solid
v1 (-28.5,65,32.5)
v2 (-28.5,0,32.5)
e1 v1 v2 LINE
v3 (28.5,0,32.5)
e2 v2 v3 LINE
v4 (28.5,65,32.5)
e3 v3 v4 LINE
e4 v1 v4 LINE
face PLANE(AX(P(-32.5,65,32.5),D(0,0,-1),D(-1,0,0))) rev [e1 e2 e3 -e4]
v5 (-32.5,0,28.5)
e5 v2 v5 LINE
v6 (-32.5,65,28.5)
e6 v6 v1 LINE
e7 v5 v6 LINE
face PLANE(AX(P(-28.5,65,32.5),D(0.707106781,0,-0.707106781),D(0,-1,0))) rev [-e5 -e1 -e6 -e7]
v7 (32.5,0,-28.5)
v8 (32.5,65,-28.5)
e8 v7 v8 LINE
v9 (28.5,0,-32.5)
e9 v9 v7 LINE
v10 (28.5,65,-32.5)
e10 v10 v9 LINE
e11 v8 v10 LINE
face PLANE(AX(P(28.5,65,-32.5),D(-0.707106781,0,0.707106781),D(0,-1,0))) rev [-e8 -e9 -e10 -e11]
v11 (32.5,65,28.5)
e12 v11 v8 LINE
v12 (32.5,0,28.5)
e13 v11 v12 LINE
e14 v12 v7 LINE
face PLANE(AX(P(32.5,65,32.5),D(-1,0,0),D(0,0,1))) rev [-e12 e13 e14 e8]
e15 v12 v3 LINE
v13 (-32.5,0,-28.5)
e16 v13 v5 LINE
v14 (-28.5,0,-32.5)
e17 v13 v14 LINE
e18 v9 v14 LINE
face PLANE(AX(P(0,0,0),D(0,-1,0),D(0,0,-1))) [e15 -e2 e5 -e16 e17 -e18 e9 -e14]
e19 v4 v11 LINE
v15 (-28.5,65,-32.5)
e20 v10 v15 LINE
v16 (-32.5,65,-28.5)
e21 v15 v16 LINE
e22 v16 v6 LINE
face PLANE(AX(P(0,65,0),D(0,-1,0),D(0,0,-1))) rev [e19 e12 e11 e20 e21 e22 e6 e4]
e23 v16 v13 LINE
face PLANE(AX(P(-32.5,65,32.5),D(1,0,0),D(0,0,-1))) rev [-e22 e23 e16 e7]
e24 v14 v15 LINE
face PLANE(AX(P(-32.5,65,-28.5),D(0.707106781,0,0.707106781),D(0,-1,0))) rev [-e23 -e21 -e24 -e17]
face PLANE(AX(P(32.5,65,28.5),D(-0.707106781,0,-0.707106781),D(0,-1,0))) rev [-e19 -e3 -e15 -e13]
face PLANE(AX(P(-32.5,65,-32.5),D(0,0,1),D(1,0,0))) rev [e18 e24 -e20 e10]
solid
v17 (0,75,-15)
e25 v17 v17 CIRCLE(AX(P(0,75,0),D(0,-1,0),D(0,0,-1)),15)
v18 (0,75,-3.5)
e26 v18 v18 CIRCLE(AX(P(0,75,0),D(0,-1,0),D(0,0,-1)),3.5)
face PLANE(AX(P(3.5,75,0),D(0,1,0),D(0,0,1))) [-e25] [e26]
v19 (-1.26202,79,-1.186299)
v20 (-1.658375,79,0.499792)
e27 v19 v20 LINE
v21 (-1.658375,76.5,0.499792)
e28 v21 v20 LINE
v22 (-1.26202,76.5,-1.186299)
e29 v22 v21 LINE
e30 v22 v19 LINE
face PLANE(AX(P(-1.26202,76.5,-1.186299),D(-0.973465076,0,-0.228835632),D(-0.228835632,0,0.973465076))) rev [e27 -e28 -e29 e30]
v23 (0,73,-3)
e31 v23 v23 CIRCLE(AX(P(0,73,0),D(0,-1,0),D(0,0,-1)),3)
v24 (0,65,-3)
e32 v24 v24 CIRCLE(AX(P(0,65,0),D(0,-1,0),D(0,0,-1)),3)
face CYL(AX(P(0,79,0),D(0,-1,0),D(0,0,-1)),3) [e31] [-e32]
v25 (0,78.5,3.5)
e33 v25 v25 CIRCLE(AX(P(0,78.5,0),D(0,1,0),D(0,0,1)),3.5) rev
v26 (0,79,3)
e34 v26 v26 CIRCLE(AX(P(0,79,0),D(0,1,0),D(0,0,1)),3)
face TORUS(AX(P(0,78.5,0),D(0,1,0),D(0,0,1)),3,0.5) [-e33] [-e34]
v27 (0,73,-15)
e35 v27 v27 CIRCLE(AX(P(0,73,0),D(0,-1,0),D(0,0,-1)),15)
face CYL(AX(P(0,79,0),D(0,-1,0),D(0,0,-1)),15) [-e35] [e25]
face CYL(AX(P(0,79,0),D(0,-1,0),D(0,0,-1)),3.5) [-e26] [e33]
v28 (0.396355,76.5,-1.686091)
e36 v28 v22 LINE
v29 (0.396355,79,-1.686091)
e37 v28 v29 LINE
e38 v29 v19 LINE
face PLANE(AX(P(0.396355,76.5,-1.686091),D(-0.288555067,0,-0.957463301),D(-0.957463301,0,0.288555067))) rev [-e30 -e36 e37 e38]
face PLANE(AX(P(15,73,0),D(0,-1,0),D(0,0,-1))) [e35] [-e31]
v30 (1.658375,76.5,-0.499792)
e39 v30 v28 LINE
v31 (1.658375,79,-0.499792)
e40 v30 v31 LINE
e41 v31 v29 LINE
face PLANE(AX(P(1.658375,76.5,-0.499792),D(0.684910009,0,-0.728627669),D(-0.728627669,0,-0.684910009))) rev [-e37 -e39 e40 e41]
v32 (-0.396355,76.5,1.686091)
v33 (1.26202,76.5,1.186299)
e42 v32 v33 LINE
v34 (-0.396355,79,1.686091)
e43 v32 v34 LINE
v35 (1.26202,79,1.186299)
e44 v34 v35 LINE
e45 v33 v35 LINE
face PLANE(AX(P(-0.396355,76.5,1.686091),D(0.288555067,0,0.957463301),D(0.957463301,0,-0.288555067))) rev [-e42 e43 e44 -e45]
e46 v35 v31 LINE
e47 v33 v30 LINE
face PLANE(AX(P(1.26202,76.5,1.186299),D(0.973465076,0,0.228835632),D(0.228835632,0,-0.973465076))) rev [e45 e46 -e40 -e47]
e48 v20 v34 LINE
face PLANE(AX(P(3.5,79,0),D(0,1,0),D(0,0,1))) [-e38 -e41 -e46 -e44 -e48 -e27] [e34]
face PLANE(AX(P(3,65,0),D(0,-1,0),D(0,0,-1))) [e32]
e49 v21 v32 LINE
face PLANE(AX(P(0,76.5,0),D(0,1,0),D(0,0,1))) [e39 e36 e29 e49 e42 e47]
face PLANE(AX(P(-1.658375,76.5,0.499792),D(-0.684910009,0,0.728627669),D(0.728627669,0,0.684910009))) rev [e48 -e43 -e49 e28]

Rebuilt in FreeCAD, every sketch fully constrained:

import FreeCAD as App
import Part
import Sketcher


def edges_at(feature, points):
    """Names of the edges that pass closest to the given points."""
    edges = feature.Shape.Edges
    near = lambda p: min(range(len(edges)), key=lambda i: edges[i].distToShape(Part.Vertex(*p))[0])
    return sorted({f"Edge{near(p) + 1}" for p in points})

doc = App.newDocument("Part")
body = doc.addObject("PartDesign::Body", "Body")

# Sketch on XZ plane
sketch1 = body.newObject("Sketcher::SketchObject", "Sketch")
sketch1.AttachmentSupport = (doc.getObject("XZ_Plane"), [""])
sketch1.MapMode = "FlatFace"
sketch1.addGeometry(Part.LineSegment(App.Vector(-32.5, -32.5, 0), App.Vector(-32.5, 32.5, 0)), False)
sketch1.addGeometry(Part.LineSegment(App.Vector(-32.5, 32.5, 0), App.Vector(32.5, 32.5, 0)), False)
sketch1.addGeometry(Part.LineSegment(App.Vector(32.5, 32.5, 0), App.Vector(32.5, -32.5, 0)), False)
sketch1.addGeometry(Part.LineSegment(App.Vector(32.5, -32.5, 0), App.Vector(-32.5, -32.5, 0)), False)
sketch1.addConstraint(Sketcher.Constraint("Coincident", 0, 2, 1, 1))
sketch1.addConstraint(Sketcher.Constraint("Coincident", 1, 2, 2, 1))
sketch1.addConstraint(Sketcher.Constraint("Coincident", 2, 2, 3, 1))
sketch1.addConstraint(Sketcher.Constraint("Coincident", 3, 2, 0, 1))
sketch1.addConstraint(Sketcher.Constraint("Vertical", 0))
sketch1.addConstraint(Sketcher.Constraint("Horizontal", 1))
sketch1.addConstraint(Sketcher.Constraint("Vertical", 2))
sketch1.addConstraint(Sketcher.Constraint("Horizontal", 3))
sketch1.addConstraint(Sketcher.Constraint("Symmetric", 0, 2, 2, 2, -1, 1))
sketch1.addConstraint(Sketcher.Constraint("Equal", 3, 0))
sketch1.addConstraint(Sketcher.Constraint("DistanceX", 1, 1, 1, 2, 65.0))
pad1 = body.newObject("PartDesign::Pad", "Pad")
pad1.Profile = sketch1
pad1.Length = 65
pad1.Reversed = True
doc.recompute()

chamfer = body.newObject("PartDesign::Chamfer", "Chamfer")
chamfer.Base = (pad1, edges_at(pad1, [
    (32.5, 32.5, 32.5),
    (-32.5, 32.5, 32.5),
    (-32.5, 32.5, -32.5),
    (32.5, 32.5, -32.5),
]))
chamfer.Size = 4
body2 = doc.addObject("PartDesign::Body", "Body001")

# Sketch on XY plane
sketch2 = body2.newObject("Sketcher::SketchObject", "Sketch001")
sketch2.AttachmentSupport = (doc.getObject("XY_Plane001"), [""])
sketch2.MapMode = "FlatFace"
sketch2.addGeometry(Part.LineSegment(App.Vector(0, 79, 0), App.Vector(0, 65, 0)), False)
sketch2.addGeometry(Part.LineSegment(App.Vector(0, 65, 0), App.Vector(3, 65, 0)), False)
sketch2.addGeometry(Part.LineSegment(App.Vector(3, 65, 0), App.Vector(3, 73, 0)), False)
sketch2.addGeometry(Part.LineSegment(App.Vector(3, 73, 0), App.Vector(15, 73, 0)), False)
sketch2.addGeometry(Part.LineSegment(App.Vector(15, 73, 0), App.Vector(15, 75, 0)), False)
sketch2.addGeometry(Part.LineSegment(App.Vector(15, 75, 0), App.Vector(3.5, 75, 0)), False)
sketch2.addGeometry(Part.LineSegment(App.Vector(3.5, 75, 0), App.Vector(3.5, 79, 0)), False)
sketch2.addGeometry(Part.LineSegment(App.Vector(3.5, 79, 0), App.Vector(0, 79, 0)), False)
sketch2.addConstraint(Sketcher.Constraint("Coincident", 0, 2, 1, 1))
sketch2.addConstraint(Sketcher.Constraint("Coincident", 1, 2, 2, 1))
sketch2.addConstraint(Sketcher.Constraint("Coincident", 2, 2, 3, 1))
sketch2.addConstraint(Sketcher.Constraint("Coincident", 3, 2, 4, 1))
sketch2.addConstraint(Sketcher.Constraint("Coincident", 4, 2, 5, 1))
sketch2.addConstraint(Sketcher.Constraint("Coincident", 5, 2, 6, 1))
sketch2.addConstraint(Sketcher.Constraint("Coincident", 6, 2, 7, 1))
sketch2.addConstraint(Sketcher.Constraint("Coincident", 7, 2, 0, 1))
sketch2.addConstraint(Sketcher.Constraint("Vertical", 0))
sketch2.addConstraint(Sketcher.Constraint("Horizontal", 1))
sketch2.addConstraint(Sketcher.Constraint("Vertical", 2))
sketch2.addConstraint(Sketcher.Constraint("Horizontal", 3))
sketch2.addConstraint(Sketcher.Constraint("Vertical", 4))
sketch2.addConstraint(Sketcher.Constraint("Horizontal", 5))
sketch2.addConstraint(Sketcher.Constraint("Vertical", 6))
sketch2.addConstraint(Sketcher.Constraint("Horizontal", 7))
sketch2.addConstraint(Sketcher.Constraint("PointOnObject", 0, 2, -2))
sketch2.addConstraint(Sketcher.Constraint("DistanceX", 1, 1, 1, 2, 3.0))
sketch2.addConstraint(Sketcher.Constraint("DistanceX", 3, 1, 3, 2, 12.0))
sketch2.addConstraint(Sketcher.Constraint("DistanceY", 0, 2, 0, 1, 14.0))
sketch2.addConstraint(Sketcher.Constraint("DistanceY", 2, 1, 2, 2, 8.0))
sketch2.addConstraint(Sketcher.Constraint("DistanceY", 4, 1, 4, 2, 2.0))
sketch2.addConstraint(Sketcher.Constraint("DistanceX", 5, 2, 5, 1, 11.5))
sketch2.addConstraint(Sketcher.Constraint("DistanceY", -1, 1, 0, 2, 65.0))
revolution = body2.newObject("PartDesign::Revolution", "Revolution")
revolution.Profile = sketch2
revolution.ReferenceAxis = (sketch2, ["V_Axis"])
revolution.Angle = 360

# Sketch on XZ plane
sketch3 = body2.newObject("Sketcher::SketchObject", "Sketch002")
sketch3.AttachmentSupport = (doc.getObject("XZ_Plane001"), [""])
sketch3.MapMode = "FlatFace"
sketch3.AttachmentOffset = App.Placement(App.Vector(0, 0, -79), App.Rotation())
sketch3.addGeometry(Part.LineSegment(App.Vector(1.26202, 1.186299, 0), App.Vector(1.658375, -0.499792, 0)), False)
sketch3.addGeometry(Part.LineSegment(App.Vector(1.658375, -0.499792, 0), App.Vector(0.396355, -1.686091, 0)), False)
sketch3.addGeometry(Part.LineSegment(App.Vector(0.396355, -1.686091, 0), App.Vector(-1.26202, -1.186299, 0)), False)
sketch3.addGeometry(Part.LineSegment(App.Vector(-1.26202, -1.186299, 0), App.Vector(-1.658375, 0.499792, 0)), False)
sketch3.addGeometry(Part.LineSegment(App.Vector(-1.658375, 0.499792, 0), App.Vector(-0.396355, 1.686091, 0)), False)
sketch3.addGeometry(Part.LineSegment(App.Vector(-0.396355, 1.686091, 0), App.Vector(1.26202, 1.186299, 0)), False)
sketch3.addConstraint(Sketcher.Constraint("Coincident", 0, 2, 1, 1))
sketch3.addConstraint(Sketcher.Constraint("Coincident", 1, 2, 2, 1))
sketch3.addConstraint(Sketcher.Constraint("Coincident", 2, 2, 3, 1))
sketch3.addConstraint(Sketcher.Constraint("Coincident", 3, 2, 4, 1))
sketch3.addConstraint(Sketcher.Constraint("Coincident", 4, 2, 5, 1))
sketch3.addConstraint(Sketcher.Constraint("Coincident", 5, 2, 0, 1))
sketch3.addConstraint(Sketcher.Constraint("Symmetric", 0, 2, 3, 2, -1, 1))
sketch3.addConstraint(Sketcher.Constraint("Symmetric", 1, 2, 4, 2, -1, 1))
sketch3.addConstraint(Sketcher.Constraint("Symmetric", 2, 2, 5, 2, -1, 1))
sketch3.addConstraint(Sketcher.Constraint("Equal", 0, 1))
sketch3.addConstraint(Sketcher.Constraint("Equal", 1, 2))
sketch3.addConstraint(Sketcher.Constraint("DistanceY", 2, 2, -1, 1, 1.186299))
sketch3.addConstraint(Sketcher.Constraint("DistanceY", 1, 2, 0, 2, 1.186299))
sketch3.addConstraint(Sketcher.Constraint("Distance", 0, 1.732051))
sketch3.addConstraint(Sketcher.Constraint("DistanceY", 1, 2, -1, 1, 1.686091))
pocket1 = body2.newObject("PartDesign::Pocket", "Pocket")
pocket1.Profile = sketch3
pocket1.Length = 2.5
pocket1.Reversed = True
doc.recompute()

fillet = body2.newObject("PartDesign::Fillet", "Fillet")
fillet.Base = (pocket1, edges_at(pocket1, [(0, 79, 3.5)]))
fillet.Radius = 0.5

doc.recompute()
